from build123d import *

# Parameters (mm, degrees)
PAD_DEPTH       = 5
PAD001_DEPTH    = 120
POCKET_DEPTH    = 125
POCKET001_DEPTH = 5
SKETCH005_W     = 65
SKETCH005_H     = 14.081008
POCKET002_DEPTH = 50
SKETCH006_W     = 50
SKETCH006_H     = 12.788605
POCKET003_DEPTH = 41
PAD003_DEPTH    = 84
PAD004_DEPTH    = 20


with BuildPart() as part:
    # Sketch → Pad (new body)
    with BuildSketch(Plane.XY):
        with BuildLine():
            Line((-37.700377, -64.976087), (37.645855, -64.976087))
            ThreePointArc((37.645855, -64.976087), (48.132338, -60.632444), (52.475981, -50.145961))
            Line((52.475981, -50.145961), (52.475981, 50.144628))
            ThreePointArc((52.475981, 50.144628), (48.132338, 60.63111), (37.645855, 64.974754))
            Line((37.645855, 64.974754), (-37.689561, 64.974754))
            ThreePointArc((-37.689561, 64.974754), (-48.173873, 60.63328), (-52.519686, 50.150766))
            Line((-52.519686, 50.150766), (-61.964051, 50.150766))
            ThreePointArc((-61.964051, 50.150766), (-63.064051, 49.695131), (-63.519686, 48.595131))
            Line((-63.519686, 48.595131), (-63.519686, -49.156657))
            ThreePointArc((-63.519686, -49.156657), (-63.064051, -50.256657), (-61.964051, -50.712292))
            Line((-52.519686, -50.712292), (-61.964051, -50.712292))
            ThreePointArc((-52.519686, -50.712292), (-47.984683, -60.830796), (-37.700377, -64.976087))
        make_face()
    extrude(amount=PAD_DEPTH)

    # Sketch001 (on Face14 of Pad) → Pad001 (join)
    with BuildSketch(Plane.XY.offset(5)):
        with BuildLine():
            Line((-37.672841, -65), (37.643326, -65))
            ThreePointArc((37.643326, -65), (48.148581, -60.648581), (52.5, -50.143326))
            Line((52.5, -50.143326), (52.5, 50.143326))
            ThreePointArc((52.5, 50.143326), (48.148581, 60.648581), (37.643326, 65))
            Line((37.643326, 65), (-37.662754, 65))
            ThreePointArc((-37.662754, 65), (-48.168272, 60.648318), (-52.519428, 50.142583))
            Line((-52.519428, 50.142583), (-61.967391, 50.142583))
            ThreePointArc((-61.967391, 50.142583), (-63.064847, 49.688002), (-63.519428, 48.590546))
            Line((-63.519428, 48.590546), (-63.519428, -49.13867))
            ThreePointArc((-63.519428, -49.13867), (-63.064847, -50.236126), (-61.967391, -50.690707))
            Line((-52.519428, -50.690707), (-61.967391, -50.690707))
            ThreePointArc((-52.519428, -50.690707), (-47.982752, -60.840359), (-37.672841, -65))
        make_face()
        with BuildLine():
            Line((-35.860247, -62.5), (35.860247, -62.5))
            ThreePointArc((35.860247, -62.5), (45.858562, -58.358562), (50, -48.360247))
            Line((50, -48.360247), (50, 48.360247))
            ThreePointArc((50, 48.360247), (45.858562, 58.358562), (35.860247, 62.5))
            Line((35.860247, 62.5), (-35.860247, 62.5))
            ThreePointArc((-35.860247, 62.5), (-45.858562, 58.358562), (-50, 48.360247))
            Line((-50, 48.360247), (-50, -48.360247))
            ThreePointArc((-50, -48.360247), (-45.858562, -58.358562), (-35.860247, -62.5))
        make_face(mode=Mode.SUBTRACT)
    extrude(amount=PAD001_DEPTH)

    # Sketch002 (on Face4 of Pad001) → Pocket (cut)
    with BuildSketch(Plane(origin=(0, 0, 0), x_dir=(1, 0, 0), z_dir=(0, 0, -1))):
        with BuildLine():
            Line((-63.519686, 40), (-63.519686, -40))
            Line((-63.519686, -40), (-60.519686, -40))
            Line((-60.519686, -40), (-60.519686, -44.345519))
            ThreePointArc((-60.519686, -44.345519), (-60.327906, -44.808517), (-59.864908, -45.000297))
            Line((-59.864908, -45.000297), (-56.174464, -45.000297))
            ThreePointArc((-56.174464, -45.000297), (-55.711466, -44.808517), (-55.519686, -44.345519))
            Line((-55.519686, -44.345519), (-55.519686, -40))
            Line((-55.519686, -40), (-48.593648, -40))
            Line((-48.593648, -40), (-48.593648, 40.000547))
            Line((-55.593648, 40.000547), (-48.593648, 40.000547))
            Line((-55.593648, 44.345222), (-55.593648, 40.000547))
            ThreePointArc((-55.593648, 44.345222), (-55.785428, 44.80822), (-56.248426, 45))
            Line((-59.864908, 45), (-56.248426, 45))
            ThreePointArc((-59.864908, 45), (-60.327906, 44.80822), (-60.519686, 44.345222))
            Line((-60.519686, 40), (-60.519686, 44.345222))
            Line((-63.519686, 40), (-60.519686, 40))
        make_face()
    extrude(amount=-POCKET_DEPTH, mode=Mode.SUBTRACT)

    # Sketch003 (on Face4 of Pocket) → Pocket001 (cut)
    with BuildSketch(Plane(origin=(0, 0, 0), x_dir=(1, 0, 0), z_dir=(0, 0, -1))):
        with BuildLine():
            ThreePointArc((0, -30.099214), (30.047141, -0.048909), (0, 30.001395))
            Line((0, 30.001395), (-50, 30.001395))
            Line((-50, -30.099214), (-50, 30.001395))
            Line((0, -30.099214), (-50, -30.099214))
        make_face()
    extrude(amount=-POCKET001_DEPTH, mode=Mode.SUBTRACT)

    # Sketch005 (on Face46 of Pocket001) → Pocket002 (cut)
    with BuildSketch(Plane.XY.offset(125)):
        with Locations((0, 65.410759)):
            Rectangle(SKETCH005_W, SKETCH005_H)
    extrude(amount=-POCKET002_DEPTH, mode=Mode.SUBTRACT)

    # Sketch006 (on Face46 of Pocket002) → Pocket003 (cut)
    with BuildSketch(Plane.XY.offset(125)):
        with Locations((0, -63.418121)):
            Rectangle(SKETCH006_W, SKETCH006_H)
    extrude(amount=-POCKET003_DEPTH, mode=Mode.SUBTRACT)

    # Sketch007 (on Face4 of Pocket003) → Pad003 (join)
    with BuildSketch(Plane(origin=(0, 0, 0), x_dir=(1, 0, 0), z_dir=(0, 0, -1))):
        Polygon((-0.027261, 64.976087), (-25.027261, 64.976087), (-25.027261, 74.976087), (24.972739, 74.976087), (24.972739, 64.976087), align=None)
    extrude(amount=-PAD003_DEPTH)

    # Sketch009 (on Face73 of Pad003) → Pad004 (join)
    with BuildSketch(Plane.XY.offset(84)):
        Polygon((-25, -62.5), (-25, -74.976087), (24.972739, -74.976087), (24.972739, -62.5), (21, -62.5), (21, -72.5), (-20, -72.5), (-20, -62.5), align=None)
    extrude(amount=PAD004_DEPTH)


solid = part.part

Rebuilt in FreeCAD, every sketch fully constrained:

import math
import FreeCAD as App
import Part
import Sketcher
from FreeCAD import Vector


def add_polygon(sketch, points):
    """Adds a closed chain of lines whose ends are joined by coincident constraints."""
    first, n = sketch.GeometryCount, len(points)
    for a, b in zip(points, points[1:] + points[:1]):
        sketch.addGeometry(Part.LineSegment(App.Vector(*a, 0), App.Vector(*b, 0)), False)
    for i in range(n):
        sketch.addConstraint(Sketcher.Constraint("Coincident", first + i, 2, first + (i + 1) % n, 1))

doc = App.newDocument("Part")
body = doc.addObject("PartDesign::Body", "Body")

sketch1 = doc.addObject("Sketcher::SketchObject", "Sketch")
body.addObject(sketch1)
sketch1.AttachmentSupport = (doc.XY_Plane, [""])
sketch1.MapMode = "FlatFace"
sketch1.addGeometry([
    Part.LineSegment(Vector(-37.7, -65, 0), Vector(37.6, -65, 0)),
    Part.ArcOfCircle(Part.Circle(Vector(37.6, -50.1, 0), Vector(0, 0, 1), 14.8), math.radians(-90), math.radians(0)),
    Part.LineSegment(Vector(52.5, -50.1, 0), Vector(52.5, 50.1, 0)),
    Part.ArcOfCircle(Part.Circle(Vector(37.6, 50.1, 0), Vector(0, 0, 1), 14.8), math.radians(0), math.radians(90)),
    Part.LineSegment(Vector(37.6, 65, 0), Vector(-37.7, 65, 0)),
    Part.ArcOfCircle(Part.Circle(Vector(-37.7, 50.1, 0), Vector(0, 0, 1), 14.8), math.radians(90), math.radians(180)),
    Part.LineSegment(Vector(-52.5, 50.2, 0), Vector(-62, 50.2, 0)),
    Part.ArcOfCircle(Part.Circle(Vector(-62, 48.6, 0), Vector(0, 0, 1), 1.6), math.radians(90), math.radians(180)),
    Part.LineSegment(Vector(-63.5, 48.6, 0), Vector(-63.5, -49.2, 0)),
    Part.ArcOfCircle(Part.Circle(Vector(-62, -49.2, 0), Vector(0, 0, 1), 1.6), math.radians(-180), math.radians(-90)),
    Part.LineSegment(Vector(-62, -50.7, 0), Vector(-52.5, -50.7, 0)),
    Part.ArcOfCircle(Part.Circle(Vector(-37.7, -50.1, 0), Vector(0, 0, 1), 14.8), math.radians(-178), math.radians(-90)),
], False)
sketch1.addConstraint([
    Sketcher.Constraint("Tangent", 0, 2, 1, 1),
    Sketcher.Constraint("Tangent", 1, 2, 2, 1),
    Sketcher.Constraint("Tangent", 2, 2, 3, 1),
    Sketcher.Constraint("Tangent", 3, 2, 4, 1),
    Sketcher.Constraint("Tangent", 4, 2, 5, 1),
    Sketcher.Constraint("Coincident", 5, 2, 6, 1),
    Sketcher.Constraint("Tangent", 6, 2, 7, 1),
    Sketcher.Constraint("Tangent", 7, 2, 8, 1),
    Sketcher.Constraint("Tangent", 8, 2, 9, 1),
    Sketcher.Constraint("Tangent", 9, 2, 10, 1),
    Sketcher.Constraint("Coincident", 10, 2, 11, 1),
    Sketcher.Constraint("Tangent", 11, 2, 0, 1),
    Sketcher.Constraint("Horizontal", 0),
    Sketcher.Constraint("Vertical", 2),
    Sketcher.Constraint("Horizontal", 4),
    Sketcher.Constraint("Horizontal", 6),
    Sketcher.Constraint("Vertical", 8),
    Sketcher.Constraint("Horizontal", 10),
    Sketcher.Constraint("Equal", 1, 3),
    Sketcher.Constraint("Equal", 3, 5),
    Sketcher.Constraint("Equal", 7, 9),
    Sketcher.Constraint("Equal", 3, 11),
    Sketcher.Constraint("Vertical", 5, 2, 10, 2),
    Sketcher.Constraint("DistanceX", 7, 2, 5, 2, 11.0),
    Sketcher.Constraint("Radius", 1, 14.830125),
    Sketcher.Constraint("Radius", 7, 1.555635),
    Sketcher.Constraint("DistanceX", 0, 1, 0, 2, 75.346232),
    Sketcher.Constraint("DistanceY", 2, 1, 2, 2, 100.290589),
    Sketcher.Constraint("DistanceY", 8, 2, 8, 1, 97.751788),
    Sketcher.Constraint("DistanceX", 4, 2, 4, 1, 75.335416),
    Sketcher.Constraint("DistanceX", 5, 3, -1, 1, 37.689559),
    Sketcher.Constraint("DistanceY", -1, 1, 7, 3, 48.595131),
])
pad1 = doc.addObject("PartDesign::Pad", "Pad")
body.addObject(pad1)
pad1.Profile = sketch1
pad1.Length = 5

sketch2 = doc.addObject("Sketcher::SketchObject", "Sketch001")
body.addObject(sketch2)
sketch2.AttachmentSupport = (doc.XY_Plane, [""])
sketch2.MapMode = "FlatFace"
sketch2.AttachmentOffset = App.Placement(Vector(0, 0, 5), App.Rotation())
sketch2.addGeometry([
    Part.LineSegment(Vector(-37.7, -65, 0), Vector(37.6, -65, 0)),
    Part.ArcOfCircle(Part.Circle(Vector(37.6, -50.1, 0), Vector(0, 0, 1), 14.9), math.radians(-90), math.radians(0)),
    Part.LineSegment(Vector(52.5, -50.1, 0), Vector(52.5, 50.1, 0)),
    Part.ArcOfCircle(Part.Circle(Vector(37.6, 50.1, 0), Vector(0, 0, 1), 14.9), math.radians(0), math.radians(90)),
    Part.LineSegment(Vector(37.6, 65, 0), Vector(-37.7, 65, 0)),
    Part.ArcOfCircle(Part.Circle(Vector(-37.7, 50.1, 0), Vector(0, 0, 1), 14.9), math.radians(90), math.radians(180)),
    Part.LineSegment(Vector(-52.5, 50.1, 0), Vector(-62, 50.1, 0)),
    Part.ArcOfCircle(Part.Circle(Vector(-62, 48.6, 0), Vector(0, 0, 1), 1.6), math.radians(90), math.radians(180)),
    Part.LineSegment(Vector(-63.5, 48.6, 0), Vector(-63.5, -49.1, 0)),
    Part.ArcOfCircle(Part.Circle(Vector(-62, -49.1, 0), Vector(0, 0, 1), 1.6), math.radians(180), math.radians(270)),
    Part.LineSegment(Vector(-62, -50.7, 0), Vector(-52.5, -50.7, 0)),
    Part.ArcOfCircle(Part.Circle(Vector(-37.7, -50.1, 0), Vector(0, 0, 1), 14.9), math.radians(-178), math.radians(-90)),
    Part.LineSegment(Vector(35.9, -62.5, 0), Vector(-35.9, -62.5, 0)),
    Part.ArcOfCircle(Part.Circle(Vector(-35.9, -48.4, 0), Vector(0, 0, 1), 14.1), math.radians(-180), math.radians(-90)),
    Part.LineSegment(Vector(-50, -48.4, 0), Vector(-50, 48.4, 0)),
    Part.ArcOfCircle(Part.Circle(Vector(-35.9, 48.4, 0), Vector(0, 0, 1), 14.1), math.radians(90), math.radians(180)),
    Part.LineSegment(Vector(-35.9, 62.5, 0), Vector(35.9, 62.5, 0)),
    Part.ArcOfCircle(Part.Circle(Vector(35.9, 48.4, 0), Vector(0, 0, 1), 14.1), math.radians(0), math.radians(90)),
    Part.LineSegment(Vector(50, 48.4, 0), Vector(50, -48.4, 0)),
    Part.ArcOfCircle(Part.Circle(Vector(35.9, -48.4, 0), Vector(0, 0, 1), 14.1), math.radians(-90), math.radians(0)),
], False)
sketch2.addConstraint([
    Sketcher.Constraint("Tangent", 0, 2, 1, 1),
    Sketcher.Constraint("Tangent", 1, 2, 2, 1),
    Sketcher.Constraint("Tangent", 2, 2, 3, 1),
    Sketcher.Constraint("Tangent", 3, 2, 4, 1),
    Sketcher.Constraint("Tangent", 4, 2, 5, 1),
    Sketcher.Constraint("Coincident", 5, 2, 6, 1),
    Sketcher.Constraint("Tangent", 6, 2, 7, 1),
    Sketcher.Constraint("Tangent", 7, 2, 8, 1),
    Sketcher.Constraint("Tangent", 8, 2, 9, 1),
    Sketcher.Constraint("Tangent", 9, 2, 10, 1),
    Sketcher.Constraint("Coincident", 10, 2, 11, 1),
    Sketcher.Constraint("Tangent", 11, 2, 0, 1),
    Sketcher.Constraint("Tangent", 12, 2, 13, 2),
    Sketcher.Constraint("Tangent", 13, 1, 14, 1),
    Sketcher.Constraint("Tangent", 14, 2, 15, 2),
    Sketcher.Constraint("Tangent", 15, 1, 16, 1),
    Sketcher.Constraint("Tangent", 16, 2, 17, 2),
    Sketcher.Constraint("Tangent", 17, 1, 18, 1),
    Sketcher.Constraint("Tangent", 18, 2, 19, 2),
    Sketcher.Constraint("Tangent", 19, 1, 12, 1),
    Sketcher.Constraint("Horizontal", 0),
    Sketcher.Constraint("Vertical", 2),
    Sketcher.Constraint("Horizontal", 4),
    Sketcher.Constraint("Horizontal", 6),
    Sketcher.Constraint("Vertical", 8),
    Sketcher.Constraint("Horizontal", 10),
    Sketcher.Constraint("Horizontal", 12),
    Sketcher.Constraint("Vertical", 14),
    Sketcher.Constraint("Horizontal", 16),
    Sketcher.Constraint("Vertical", 18),
    Sketcher.Constraint("Equal", 1, 3),
    Sketcher.Constraint("Equal", 3, 5),
    Sketcher.Constraint("Equal", 7, 9),
    Sketcher.Constraint("Equal", 5, 11),
    Sketcher.Constraint("Equal", 13, 15),
    Sketcher.Constraint("Equal", 15, 17),
    Sketcher.Constraint("Equal", 17, 19),
    Sketcher.Constraint("Symmetric", 13, 3, 17, 3, -1, 1),
    Sketcher.Constraint("Vertical", 5, 2, 10, 2),
    Sketcher.Constraint("DistanceY", 0, 2, -1, 1, 65.0),
    Sketcher.Constraint("DistanceY", -1, 1, 3, 2, 65.0),
    Sketcher.Constraint("DistanceX", 13, 1, -1, 1, 50.0),
    Sketcher.Constraint("DistanceX", 7, 2, 5, 2, 11.0),
    Sketcher.Constraint("DistanceX", -1, 1, 1, 2, 52.5),
    Sketcher.Constraint("DistanceY", 12, 2, -1, 1, 62.5),
    Sketcher.Constraint("Radius", 1, 14.856674),
    Sketcher.Constraint("Radius", 7, 1.552037),
    Sketcher.Constraint("Radius", 13, 14.139754),
    Sketcher.Constraint("DistanceX", 5, 3, 17, 3, 73.523),
    Sketcher.Constraint("DistanceY", 15, 3, 7, 3, 0.2303),
    Sketcher.Constraint("DistanceX", 0, 1, 0, 2, 75.316167),
])
pad2 = doc.addObject("PartDesign::Pad", "Pad001")
body.addObject(pad2)
pad2.Profile = sketch2
pad2.Length = 120

sketch3 = doc.addObject("Sketcher::SketchObject", "Sketch002")
body.addObject(sketch3)
sketch3.AttachmentSupport = (doc.XY_Plane, [""])
sketch3.MapMode = "FlatFace"
sketch3.addGeometry([
    Part.LineSegment(Vector(-63.5, -40, 0), Vector(-63.5, 40, 0)),
    Part.LineSegment(Vector(-63.5, 40, 0), Vector(-60.5, 40, 0)),
    Part.LineSegment(Vector(-60.5, 40, 0), Vector(-60.5, 44.3, 0)),
    Part.ArcOfCircle(Part.Circle(Vector(-59.9, 44.3, 0), Vector(0, 0, 1), 0.7), math.radians(90), math.radians(180)),
    Part.LineSegment(Vector(-59.9, 45, 0), Vector(-56.2, 45, 0)),
    Part.ArcOfCircle(Part.Circle(Vector(-56.2, 44.3, 0), Vector(0, 0, 1), 0.7), math.radians(0), math.radians(90)),
    Part.LineSegment(Vector(-55.5, 44.3, 0), Vector(-55.5, 40, 0)),
    Part.LineSegment(Vector(-55.5, 40, 0), Vector(-48.6, 40, 0)),
    Part.LineSegment(Vector(-48.6, 40, 0), Vector(-48.6, -40, 0)),
    Part.LineSegment(Vector(-48.6, -40, 0), Vector(-55.6, -40, 0)),
    Part.LineSegment(Vector(-55.6, -40, 0), Vector(-55.6, -44.3, 0)),
    Part.ArcOfCircle(Part.Circle(Vector(-56.2, -44.3, 0), Vector(0, 0, 1), 0.7), math.radians(-90), math.radians(0)),
    Part.LineSegment(Vector(-56.2, -45, 0), Vector(-59.9, -45, 0)),
    Part.ArcOfCircle(Part.Circle(Vector(-59.9, -44.3, 0), Vector(0, 0, 1), 0.7), math.radians(180), math.radians(270)),
    Part.LineSegment(Vector(-60.5, -44.3, 0), Vector(-60.5, -40, 0)),
    Part.LineSegment(Vector(-60.5, -40, 0), Vector(-63.5, -40, 0)),
], False)
sketch3.addConstraint([
    Sketcher.Constraint("Coincident", 0, 2, 1, 1),
    Sketcher.Constraint("Coincident", 1, 2, 2, 1),
    Sketcher.Constraint("Tangent", 2, 2, 3, 2),
    Sketcher.Constraint("Tangent", 3, 1, 4, 1),
    Sketcher.Constraint("Tangent", 4, 2, 5, 2),
    Sketcher.Constraint("Tangent", 5, 1, 6, 1),
    Sketcher.Constraint("Coincident", 6, 2, 7, 1),
    Sketcher.Constraint("Coincident", 7, 2, 8, 1),
    Sketcher.Constraint("Coincident", 8, 2, 9, 1),
    Sketcher.Constraint("Coincident", 9, 2, 10, 1),
    Sketcher.Constraint("Tangent", 10, 2, 11, 2),
    Sketcher.Constraint("Tangent", 11, 1, 12, 1),
    Sketcher.Constraint("Tangent", 12, 2, 13, 2),
    Sketcher.Constraint("Tangent", 13, 1, 14, 1),
    Sketcher.Constraint("Coincident", 14, 2, 15, 1),
    Sketcher.Constraint("Coincident", 15, 2, 0, 1),
    Sketcher.Constraint("Vertical", 0),
    Sketcher.Constraint("Horizontal", 1),
    Sketcher.Constraint("Vertical", 2),
    Sketcher.Constraint("Horizontal", 4),
    Sketcher.Constraint("Vertical", 6),
    Sketcher.Constraint("Horizontal", 7),
    Sketcher.Constraint("Vertical", 8),
    Sketcher.Constraint("Horizontal", 9),
    Sketcher.Constraint("Vertical", 10),
    Sketcher.Constraint("Horizontal", 12),
    Sketcher.Constraint("Vertical", 14),
    Sketcher.Constraint("Horizontal", 15),
    Sketcher.Constraint("Equal", 3, 5),
    Sketcher.Constraint("Equal", 5, 11),
    Sketcher.Constraint("Equal", 11, 13),
    Sketcher.Constraint("Symmetric", 1, 2, 14, 2, -1),
    Sketcher.Constraint("Horizontal", 1, 2, 6, 2),
    Sketcher.Constraint("DistanceX", 1, 1, 1, 2, 3.0),
    Sketcher.Constraint("DistanceX", 9, 2, 9, 1, 7.0),
    Sketcher.Constraint("DistanceY", 0, 1, 0, 2, 80.0),
    Sketcher.Constraint("DistanceY", 11, 1, -1, 1, 45.0),
    Sketcher.Constraint("DistanceX", 2, 2, 5, 1, 5.0),
    Sketcher.Constraint("Radius", 3, 0.654778),
    Sketcher.Constraint("DistanceX", 12, 2, 12, 1, 3.616482),
    Sketcher.Constraint("DistanceY", 2, 1, 2, 2, 4.345519),
    Sketcher.Constraint("DistanceY", 8, 2, 8, 1, 80.000547),
    Sketcher.Constraint("DistanceX", 3, 3, -1, 1, 59.864908),
])
pocket1 = doc.addObject("PartDesign::Pocket", "Pocket")
body.addObject(pocket1)
pocket1.Profile = sketch3
pocket1.Length = 125
pocket1.Reversed = True

sketch4 = doc.addObject("Sketcher::SketchObject", "Sketch003")
body.addObject(sketch4)
sketch4.AttachmentSupport = (doc.XY_Plane, [""])
sketch4.MapMode = "FlatFace"
sketch4.addGeometry([
    Part.ArcOfCircle(Part.Circle(Vector(0, 0, 0), Vector(0, 0, 1), 30), math.radians(-90), math.radians(90)),
    Part.LineSegment(Vector(0, -30, 0), Vector(-50, -30, 0)),
    Part.LineSegment(Vector(-50, -30, 0), Vector(-50, 30, 0)),
    Part.LineSegment(Vector(-50, 30, 0), Vector(0, 30, 0)),
], False)
sketch4.addConstraint([
    Sketcher.Constraint("Coincident", 0, 1, 1, 1),
    Sketcher.Constraint("Coincident", 1, 2, 2, 1),
    Sketcher.Constraint("Coincident", 2, 2, 3, 1),
    Sketcher.Constraint("Coincident", 3, 2, 0, 2),
    Sketcher.Constraint("Horizontal", 1),
    Sketcher.Constraint("Vertical", 2),
    Sketcher.Constraint("Horizontal", 3),
    Sketcher.Constraint("PointOnObject", 0, 1, -2),
    Sketcher.Constraint("PointOnObject", 3, 2, -2),
    Sketcher.Constraint("DistanceX", 1, 2, 1, 1, 50.0),
    Sketcher.Constraint("Radius", 0, 30.050305),
    Sketcher.Constraint("DistanceY", -1, 1, 0, 3, 0.04891),
    Sketcher.Constraint("DistanceX", 0, 3, -1, 1, 0.003164),
])
pocket2 = doc.addObject("PartDesign::Pocket", "Pocket001")
body.addObject(pocket2)
pocket2.Profile = sketch4
pocket2.Length = 5
pocket2.Reversed = True

sketch5 = doc.addObject("Sketcher::SketchObject", "Sketch004")
body.addObject(sketch5)
sketch5.AttachmentSupport = (doc.XY_Plane, [""])
sketch5.MapMode = "FlatFace"
sketch5.AttachmentOffset = App.Placement(Vector(0, 0, 125), App.Rotation())
add_polygon(sketch5, [(-32, 72), (-32, 58), (32, 58), (32, 72)])
sketch5.addConstraint([
    Sketcher.Constraint("Vertical", 0),
    Sketcher.Constraint("Horizontal", 1),
    Sketcher.Constraint("Vertical", 2),
    Sketcher.Constraint("Horizontal", 3),
    Sketcher.Constraint("DistanceX", 1, 1, 1, 2, 65.0),
    Sketcher.Constraint("DistanceX", 0, 2, -1, 1, 32.5),
    Sketcher.Constraint("DistanceY", 0, 2, 0, 1, 14.081008),
    Sketcher.Constraint("DistanceY", -1, 1, 0, 2, 58.370255),
])
pocket3 = doc.addObject("PartDesign::Pocket", "Pocket002")
body.addObject(pocket3)
pocket3.Profile = sketch5
pocket3.Length = 50

sketch6 = doc.addObject("Sketcher::SketchObject", "Sketch005")
body.addObject(sketch6)
sketch6.AttachmentSupport = (doc.XY_Plane, [""])
sketch6.MapMode = "FlatFace"
sketch6.AttachmentOffset = App.Placement(Vector(0, 0, 125), App.Rotation())
add_polygon(sketch6, [(-25, -57), (-25, -70), (25, -70), (25, -57)])
sketch6.addConstraint([
    Sketcher.Constraint("Vertical", 0),
    Sketcher.Constraint("Horizontal", 1),
    Sketcher.Constraint("Vertical", 2),
    Sketcher.Constraint("Horizontal", 3),
    Sketcher.Constraint("DistanceX", 1, 1, 1, 2, 50.0),
    Sketcher.Constraint("DistanceX", 0, 2, -1, 1, 25.0),
    Sketcher.Constraint("DistanceY", 0, 2, 0, 1, 12.788605),
    Sketcher.Constraint("DistanceY", 2, 2, -1, 1, 57.023818),
])
pocket4 = doc.addObject("PartDesign::Pocket", "Pocket003")
body.addObject(pocket4)
pocket4.Profile = sketch6
pocket4.Length = 41

sketch7 = doc.addObject("Sketcher::SketchObject", "Sketch006")
body.addObject(sketch7)
sketch7.AttachmentSupport = (doc.XY_Plane, [""])
sketch7.MapMode = "FlatFace"
add_polygon(sketch7, [(-25, -65), (25, -65), (25, -75), (-25, -75)])
sketch7.addConstraint([
    Sketcher.Constraint("Horizontal", 0),
    Sketcher.Constraint("Vertical", 1),
    Sketcher.Constraint("Horizontal", 2),
    Sketcher.Constraint("Vertical", 3),
    Sketcher.Constraint("DistanceX", 0, 1, 0, 2, 50.0),
    Sketcher.Constraint("DistanceY", 1, 2, 1, 1, 10.0),
    Sketcher.Constraint("DistanceX", -1, 1, 0, 2, 24.972739),
    Sketcher.Constraint("DistanceY", 0, 2, -1, 1, 64.976087),
])
pad3 = doc.addObject("PartDesign::Pad", "Pad002")
body.addObject(pad3)
pad3.Profile = sketch7
pad3.Length = 84

sketch8 = doc.addObject("Sketcher::SketchObject", "Sketch007")
body.addObject(sketch8)
sketch8.AttachmentSupport = (doc.XY_Plane, [""])
sketch8.MapMode = "FlatFace"
sketch8.AttachmentOffset = App.Placement(Vector(0, 0, 84), App.Rotation())
add_polygon(sketch8, [(-25, -62.5), (-25, -75), (25, -75), (25, -62.5), (21, -62.5), (21, -72.5), (-20, -72.5), (-20, -62.5)])
sketch8.addConstraint([
    Sketcher.Constraint("Vertical", 0),
    Sketcher.Constraint("Horizontal", 1),
    Sketcher.Constraint("Vertical", 2),
    Sketcher.Constraint("Horizontal", 3),
    Sketcher.Constraint("Vertical", 4),
    Sketcher.Constraint("Horizontal", 5),
    Sketcher.Constraint("Vertical", 6),
    Sketcher.Constraint("Horizontal", 7),
    Sketcher.Constraint("Horizontal", 3, 2, 6, 2),
    Sketcher.Constraint("DistanceX", 5, 2, 5, 1, 41.0),
    Sketcher.Constraint("DistanceX", 7, 2, 7, 1, 5.0),
    Sketcher.Constraint("DistanceY", 4, 2, 4, 1, 10.0),
    Sketcher.Constraint("DistanceX", 0, 2, -1, 1, 25.0),
    Sketcher.Constraint("DistanceY", 2, 2, -1, 1, 62.5),
    Sketcher.Constraint("DistanceX", 1, 1, 1, 2, 49.972739),
    Sketcher.Constraint("DistanceY", 0, 2, 0, 1, 12.476087),
])
pad4 = doc.addObject("PartDesign::Pad", "Pad003")
body.addObject(pad4)
pad4.Profile = sketch8
pad4.Length = 20

doc.recompute()
